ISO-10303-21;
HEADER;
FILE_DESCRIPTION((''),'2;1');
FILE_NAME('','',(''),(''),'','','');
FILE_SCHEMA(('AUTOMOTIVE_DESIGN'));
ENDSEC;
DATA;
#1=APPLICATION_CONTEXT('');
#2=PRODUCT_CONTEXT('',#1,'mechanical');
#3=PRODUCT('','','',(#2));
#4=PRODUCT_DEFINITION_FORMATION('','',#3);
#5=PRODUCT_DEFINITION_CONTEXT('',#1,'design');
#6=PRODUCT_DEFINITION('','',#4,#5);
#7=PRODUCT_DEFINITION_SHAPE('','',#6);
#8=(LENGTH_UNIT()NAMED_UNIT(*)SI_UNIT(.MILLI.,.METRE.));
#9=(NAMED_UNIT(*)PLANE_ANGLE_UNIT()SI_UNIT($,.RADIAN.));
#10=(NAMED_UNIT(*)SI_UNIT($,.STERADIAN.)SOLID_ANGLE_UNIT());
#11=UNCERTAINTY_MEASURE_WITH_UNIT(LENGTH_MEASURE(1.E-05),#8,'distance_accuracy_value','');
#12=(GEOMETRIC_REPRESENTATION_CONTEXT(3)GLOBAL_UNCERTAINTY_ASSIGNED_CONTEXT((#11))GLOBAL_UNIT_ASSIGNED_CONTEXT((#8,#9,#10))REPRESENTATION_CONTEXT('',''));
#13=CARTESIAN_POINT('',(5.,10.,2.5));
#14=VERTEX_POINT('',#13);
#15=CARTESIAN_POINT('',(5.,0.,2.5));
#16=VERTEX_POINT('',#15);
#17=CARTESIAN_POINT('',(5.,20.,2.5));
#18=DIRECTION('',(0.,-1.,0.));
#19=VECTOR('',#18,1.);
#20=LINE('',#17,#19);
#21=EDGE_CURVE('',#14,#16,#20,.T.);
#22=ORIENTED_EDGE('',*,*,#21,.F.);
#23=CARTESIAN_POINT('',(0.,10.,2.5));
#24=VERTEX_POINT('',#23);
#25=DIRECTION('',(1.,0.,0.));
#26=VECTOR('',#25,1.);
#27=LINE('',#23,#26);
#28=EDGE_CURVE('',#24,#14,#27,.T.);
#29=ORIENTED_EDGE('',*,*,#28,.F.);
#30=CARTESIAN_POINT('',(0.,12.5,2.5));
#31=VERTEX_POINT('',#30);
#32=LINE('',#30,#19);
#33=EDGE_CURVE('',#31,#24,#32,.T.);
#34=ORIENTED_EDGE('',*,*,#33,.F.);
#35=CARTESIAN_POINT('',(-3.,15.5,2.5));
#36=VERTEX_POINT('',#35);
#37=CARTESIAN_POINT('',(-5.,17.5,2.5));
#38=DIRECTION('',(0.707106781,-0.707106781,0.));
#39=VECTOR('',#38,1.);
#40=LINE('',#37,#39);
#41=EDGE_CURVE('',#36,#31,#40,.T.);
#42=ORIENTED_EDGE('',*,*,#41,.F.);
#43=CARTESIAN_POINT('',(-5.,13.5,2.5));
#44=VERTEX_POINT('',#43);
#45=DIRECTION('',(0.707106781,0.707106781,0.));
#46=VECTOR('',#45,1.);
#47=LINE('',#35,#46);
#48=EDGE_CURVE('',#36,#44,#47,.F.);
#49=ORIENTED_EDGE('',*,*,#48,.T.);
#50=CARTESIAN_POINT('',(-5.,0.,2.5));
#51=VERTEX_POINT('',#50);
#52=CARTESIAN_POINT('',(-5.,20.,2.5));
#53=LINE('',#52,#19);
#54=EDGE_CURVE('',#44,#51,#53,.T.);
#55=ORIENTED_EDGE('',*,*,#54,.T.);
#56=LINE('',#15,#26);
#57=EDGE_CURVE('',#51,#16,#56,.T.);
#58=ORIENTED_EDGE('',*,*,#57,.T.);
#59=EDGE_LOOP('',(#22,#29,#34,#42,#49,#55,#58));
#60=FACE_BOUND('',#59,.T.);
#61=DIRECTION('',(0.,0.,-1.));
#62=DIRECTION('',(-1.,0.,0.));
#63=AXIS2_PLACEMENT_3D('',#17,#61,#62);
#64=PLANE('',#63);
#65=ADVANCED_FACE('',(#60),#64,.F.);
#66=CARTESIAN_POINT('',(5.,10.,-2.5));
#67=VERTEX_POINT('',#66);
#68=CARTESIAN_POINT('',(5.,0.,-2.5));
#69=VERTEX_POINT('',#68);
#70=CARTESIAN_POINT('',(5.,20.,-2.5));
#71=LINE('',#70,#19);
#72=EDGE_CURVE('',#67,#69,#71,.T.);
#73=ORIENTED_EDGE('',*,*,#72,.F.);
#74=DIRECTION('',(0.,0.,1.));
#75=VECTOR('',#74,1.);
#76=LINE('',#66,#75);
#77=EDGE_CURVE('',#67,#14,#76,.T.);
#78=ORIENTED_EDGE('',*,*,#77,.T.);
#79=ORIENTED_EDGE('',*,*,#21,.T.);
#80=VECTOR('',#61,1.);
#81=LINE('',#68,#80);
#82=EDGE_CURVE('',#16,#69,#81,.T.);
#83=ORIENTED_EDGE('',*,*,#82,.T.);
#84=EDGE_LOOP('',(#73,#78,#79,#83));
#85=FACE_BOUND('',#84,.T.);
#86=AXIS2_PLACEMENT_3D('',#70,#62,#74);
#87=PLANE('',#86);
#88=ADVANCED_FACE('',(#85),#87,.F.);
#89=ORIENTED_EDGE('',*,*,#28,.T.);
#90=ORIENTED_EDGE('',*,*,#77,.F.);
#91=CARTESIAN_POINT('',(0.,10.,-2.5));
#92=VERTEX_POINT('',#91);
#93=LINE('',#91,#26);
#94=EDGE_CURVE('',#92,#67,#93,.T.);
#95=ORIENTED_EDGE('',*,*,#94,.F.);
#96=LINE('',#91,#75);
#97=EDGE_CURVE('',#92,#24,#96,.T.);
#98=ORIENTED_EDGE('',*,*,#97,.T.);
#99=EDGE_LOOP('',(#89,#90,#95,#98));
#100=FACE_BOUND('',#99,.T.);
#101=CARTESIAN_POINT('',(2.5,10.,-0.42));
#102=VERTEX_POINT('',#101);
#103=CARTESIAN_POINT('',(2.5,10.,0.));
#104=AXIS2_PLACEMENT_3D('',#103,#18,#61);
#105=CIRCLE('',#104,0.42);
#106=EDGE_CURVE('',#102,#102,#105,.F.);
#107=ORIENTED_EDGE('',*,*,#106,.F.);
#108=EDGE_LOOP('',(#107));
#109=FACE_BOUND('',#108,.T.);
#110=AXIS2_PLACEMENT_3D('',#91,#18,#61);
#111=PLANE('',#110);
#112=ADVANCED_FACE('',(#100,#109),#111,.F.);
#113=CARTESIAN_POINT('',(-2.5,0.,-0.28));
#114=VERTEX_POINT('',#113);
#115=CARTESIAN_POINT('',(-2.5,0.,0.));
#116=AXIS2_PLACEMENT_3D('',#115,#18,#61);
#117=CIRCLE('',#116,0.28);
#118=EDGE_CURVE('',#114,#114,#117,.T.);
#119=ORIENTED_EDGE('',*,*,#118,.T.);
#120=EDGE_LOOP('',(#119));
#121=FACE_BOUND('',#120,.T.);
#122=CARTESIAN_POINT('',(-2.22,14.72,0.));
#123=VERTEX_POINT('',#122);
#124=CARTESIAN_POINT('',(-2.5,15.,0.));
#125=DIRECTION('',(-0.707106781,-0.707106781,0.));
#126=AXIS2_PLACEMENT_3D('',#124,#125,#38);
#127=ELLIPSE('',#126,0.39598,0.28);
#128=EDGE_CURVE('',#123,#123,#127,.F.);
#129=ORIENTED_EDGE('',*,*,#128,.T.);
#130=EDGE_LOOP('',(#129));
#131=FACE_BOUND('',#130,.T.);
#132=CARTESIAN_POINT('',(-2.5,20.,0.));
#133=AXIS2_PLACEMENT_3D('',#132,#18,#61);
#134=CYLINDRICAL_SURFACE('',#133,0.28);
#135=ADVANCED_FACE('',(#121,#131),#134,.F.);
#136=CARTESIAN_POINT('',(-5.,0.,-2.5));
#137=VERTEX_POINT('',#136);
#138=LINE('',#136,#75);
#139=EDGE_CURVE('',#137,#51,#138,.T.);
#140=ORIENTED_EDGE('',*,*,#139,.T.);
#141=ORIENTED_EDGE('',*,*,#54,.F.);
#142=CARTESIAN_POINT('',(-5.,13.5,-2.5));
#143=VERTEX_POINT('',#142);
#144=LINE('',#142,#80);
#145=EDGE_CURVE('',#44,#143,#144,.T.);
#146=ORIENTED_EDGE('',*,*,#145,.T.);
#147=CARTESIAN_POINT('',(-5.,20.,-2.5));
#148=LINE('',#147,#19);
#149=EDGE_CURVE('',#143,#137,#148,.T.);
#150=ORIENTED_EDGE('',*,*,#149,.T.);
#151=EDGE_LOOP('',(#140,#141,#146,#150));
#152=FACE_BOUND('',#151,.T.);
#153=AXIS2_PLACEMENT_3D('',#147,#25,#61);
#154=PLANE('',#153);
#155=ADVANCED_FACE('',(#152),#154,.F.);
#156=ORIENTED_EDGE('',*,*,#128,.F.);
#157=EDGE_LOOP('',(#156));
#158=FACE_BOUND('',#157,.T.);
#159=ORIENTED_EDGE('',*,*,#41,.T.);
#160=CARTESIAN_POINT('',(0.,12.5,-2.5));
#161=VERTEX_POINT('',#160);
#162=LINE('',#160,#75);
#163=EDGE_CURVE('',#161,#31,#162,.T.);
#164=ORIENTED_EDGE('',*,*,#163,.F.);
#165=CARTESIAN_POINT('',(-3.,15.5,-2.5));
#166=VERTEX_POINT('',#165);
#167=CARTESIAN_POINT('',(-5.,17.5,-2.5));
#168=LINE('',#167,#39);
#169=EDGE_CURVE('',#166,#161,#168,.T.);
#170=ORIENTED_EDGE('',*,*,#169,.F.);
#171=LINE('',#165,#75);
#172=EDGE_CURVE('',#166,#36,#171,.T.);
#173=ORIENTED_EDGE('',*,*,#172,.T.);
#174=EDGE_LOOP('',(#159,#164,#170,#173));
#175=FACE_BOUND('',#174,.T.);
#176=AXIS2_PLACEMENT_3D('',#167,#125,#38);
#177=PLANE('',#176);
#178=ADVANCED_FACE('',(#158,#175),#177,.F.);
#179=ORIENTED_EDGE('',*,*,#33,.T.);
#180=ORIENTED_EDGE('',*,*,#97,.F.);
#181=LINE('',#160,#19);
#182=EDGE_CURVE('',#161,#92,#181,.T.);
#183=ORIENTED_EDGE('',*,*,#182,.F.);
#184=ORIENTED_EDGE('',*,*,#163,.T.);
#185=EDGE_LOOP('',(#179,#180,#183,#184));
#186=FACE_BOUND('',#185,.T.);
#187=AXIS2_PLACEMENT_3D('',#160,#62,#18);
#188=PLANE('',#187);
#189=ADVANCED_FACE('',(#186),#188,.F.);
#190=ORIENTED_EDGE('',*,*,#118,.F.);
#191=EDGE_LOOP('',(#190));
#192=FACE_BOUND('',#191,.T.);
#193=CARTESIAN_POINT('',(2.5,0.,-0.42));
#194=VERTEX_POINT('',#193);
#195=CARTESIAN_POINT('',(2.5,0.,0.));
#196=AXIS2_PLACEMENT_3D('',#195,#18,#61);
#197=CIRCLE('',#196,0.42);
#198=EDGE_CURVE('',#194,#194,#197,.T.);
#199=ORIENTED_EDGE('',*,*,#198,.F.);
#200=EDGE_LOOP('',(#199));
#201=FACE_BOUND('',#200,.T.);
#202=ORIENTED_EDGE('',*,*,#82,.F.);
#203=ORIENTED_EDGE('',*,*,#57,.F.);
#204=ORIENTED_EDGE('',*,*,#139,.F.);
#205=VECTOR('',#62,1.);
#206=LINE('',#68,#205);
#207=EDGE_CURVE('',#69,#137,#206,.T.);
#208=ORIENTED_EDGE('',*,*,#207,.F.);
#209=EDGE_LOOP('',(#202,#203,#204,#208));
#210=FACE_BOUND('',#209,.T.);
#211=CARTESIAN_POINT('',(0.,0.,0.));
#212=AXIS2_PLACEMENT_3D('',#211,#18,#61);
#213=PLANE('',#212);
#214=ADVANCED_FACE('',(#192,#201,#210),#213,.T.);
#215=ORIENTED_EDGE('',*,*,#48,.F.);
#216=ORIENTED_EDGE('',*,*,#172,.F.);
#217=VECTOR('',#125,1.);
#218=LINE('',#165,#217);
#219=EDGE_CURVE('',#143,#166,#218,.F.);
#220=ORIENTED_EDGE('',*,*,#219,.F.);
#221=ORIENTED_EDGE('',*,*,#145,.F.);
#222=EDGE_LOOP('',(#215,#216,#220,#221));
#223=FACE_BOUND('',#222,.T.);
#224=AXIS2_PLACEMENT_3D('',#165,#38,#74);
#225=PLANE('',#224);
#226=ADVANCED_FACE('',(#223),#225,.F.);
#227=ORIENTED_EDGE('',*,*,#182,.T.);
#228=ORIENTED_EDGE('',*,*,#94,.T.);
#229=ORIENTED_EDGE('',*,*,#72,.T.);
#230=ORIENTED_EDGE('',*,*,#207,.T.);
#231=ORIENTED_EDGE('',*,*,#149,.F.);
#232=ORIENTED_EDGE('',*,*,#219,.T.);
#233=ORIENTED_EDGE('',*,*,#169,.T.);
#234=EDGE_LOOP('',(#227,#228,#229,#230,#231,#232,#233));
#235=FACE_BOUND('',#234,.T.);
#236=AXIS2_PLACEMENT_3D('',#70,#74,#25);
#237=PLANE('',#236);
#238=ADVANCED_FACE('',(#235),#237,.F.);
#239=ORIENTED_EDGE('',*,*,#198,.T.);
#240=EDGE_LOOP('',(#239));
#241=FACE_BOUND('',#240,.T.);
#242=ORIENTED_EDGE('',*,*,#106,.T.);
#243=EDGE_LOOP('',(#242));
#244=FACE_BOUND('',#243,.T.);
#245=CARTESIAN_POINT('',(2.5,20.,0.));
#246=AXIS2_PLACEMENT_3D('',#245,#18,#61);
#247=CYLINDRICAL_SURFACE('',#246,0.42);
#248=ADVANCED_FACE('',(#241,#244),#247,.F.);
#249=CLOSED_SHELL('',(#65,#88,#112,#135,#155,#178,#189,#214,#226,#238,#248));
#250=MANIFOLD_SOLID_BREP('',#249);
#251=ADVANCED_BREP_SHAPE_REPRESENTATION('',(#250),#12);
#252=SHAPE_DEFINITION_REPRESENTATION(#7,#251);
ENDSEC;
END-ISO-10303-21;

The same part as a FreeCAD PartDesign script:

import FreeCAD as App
import Part
import Sketcher
from FreeCAD import Vector
Q = App.Units.Quantity


def edges_at(feature, points):
    """Names of the edges that pass closest to the given points."""
    edges = feature.Shape.Edges
    near = lambda p: min(range(len(edges)), key=lambda i: edges[i].distToShape(Part.Vertex(*p))[0])
    return sorted({f"Edge{near(p) + 1}" for p in points})


def add_polygon(sketch, points):
    """Adds a closed chain of lines whose ends are joined by coincident constraints."""
    first, n = sketch.GeometryCount, len(points)
    for a, b in zip(points, points[1:] + points[:1]):
        sketch.addGeometry(Part.LineSegment(App.Vector(*a, 0), App.Vector(*b, 0)), False)
    for i in range(n):
        sketch.addConstraint(Sketcher.Constraint("Coincident", first + i, 2, first + (i + 1) % n, 1))

doc = App.newDocument("Part")
body = doc.addObject("PartDesign::Body", "Body")

# Sketch on XZ plane
sketch1 = body.newObject("Sketcher::SketchObject", "Sketch")
sketch1.AttachmentSupport = (doc.getObject("XZ_Plane"), [""])
sketch1.MapMode = "FlatFace"
add_polygon(sketch1, [(-5, -2.5), (-5, 2.5), (5, 2.5), (5, -2.5)])  # lines 0-3
sketch1.addConstraint([
    Sketcher.Constraint("Vertical", 0),
    Sketcher.Constraint("Horizontal", 1),
    Sketcher.Constraint("Vertical", 2),
    Sketcher.Constraint("Horizontal", 3),
    Sketcher.Constraint("Symmetric", 0, 2, 2, 2, -1, 1),
    Sketcher.Constraint("DistanceX", 1, 1, 1, 2, Q("10 mm")),
    Sketcher.Constraint("DistanceY", 0, 1, 0, 2, Q("5 mm")),
])
pad1 = body.newObject("PartDesign::Pad", "Pad")
pad1.Profile = sketch1
pad1.Length = 20
pad1.Reversed = True

# Sketch on XZ plane
sketch2 = body.newObject("Sketcher::SketchObject", "Sketch001")
sketch2.AttachmentSupport = (doc.getObject("XZ_Plane"), [""])
sketch2.MapMode = "FlatFace"
sketch2.addGeometry([
    Part.Circle(Vector(2.5, 0, 0), Vector(0, 0, 1), 0.42),
    Part.Circle(Vector(-2.5, 0, 0), Vector(0, 0, 1), 0.28),
], False)
sketch2.addConstraint([
    Sketcher.Constraint("Symmetric", 0, 3, 1, 3, -1, 1),
    Sketcher.Constraint("PointOnObject", 0, 3, -1),
    Sketcher.Constraint("Diameter", 0, Q("0.84 mm")),
    Sketcher.Constraint("Diameter", 1, Q("0.56 mm")),
    Sketcher.Constraint("DistanceX", 1, 3, 0, 3, Q("5 mm")),
])
pocket1 = body.newObject("PartDesign::Pocket", "Pocket")
pocket1.Profile = sketch2
pocket1.Type = "ThroughAll"

# Sketch on XY plane
sketch3 = body.newObject("Sketcher::SketchObject", "Sketch002")
sketch3.AttachmentSupport = (doc.getObject("XY_Plane"), [""])
sketch3.MapMode = "FlatFace"
add_polygon(sketch3, [(-5, 17.5), (0, 12.5), (0, 10), (5, 10), (5, 20), (-5, 20)])  # lines 0-5
sketch3.addConstraint([
    Sketcher.Constraint("Vertical", 1),
    Sketcher.Constraint("Horizontal", 2),
    Sketcher.Constraint("Vertical", 3),
    Sketcher.Constraint("Horizontal", 4),
    Sketcher.Constraint("Vertical", 5),
    Sketcher.Constraint("PointOnObject", 0, 2, -2),
    Sketcher.Constraint("Equal", 4, 3),
    Sketcher.Constraint("Equal", 1, 5),
    Sketcher.Constraint("DistanceX", 2, 1, 2, 2, Q("5 mm")),
    Sketcher.Constraint("DistanceX", 4, 2, 4, 1, Q("10 mm")),
    Sketcher.Constraint("Angle", 0, Q("-45 deg")),
    Sketcher.Constraint("DistanceY", -1, 1, 1, 2, Q("10 mm")),
])
pocket2 = body.newObject("PartDesign::Pocket", "Pocket001")
pocket2.Profile = sketch3
pocket2.Type = "ThroughAll"
pocket2.Midplane = True
doc.recompute()

chamfer = body.newObject("PartDesign::Chamfer", "Chamfer")
chamfer.Base = (pocket2, edges_at(pocket2, [(-5, 17.5, 0)]))
chamfer.ChamferType = "Two distances"
chamfer.Size = 4
chamfer.Size2 = 2.828427

doc.recompute()
